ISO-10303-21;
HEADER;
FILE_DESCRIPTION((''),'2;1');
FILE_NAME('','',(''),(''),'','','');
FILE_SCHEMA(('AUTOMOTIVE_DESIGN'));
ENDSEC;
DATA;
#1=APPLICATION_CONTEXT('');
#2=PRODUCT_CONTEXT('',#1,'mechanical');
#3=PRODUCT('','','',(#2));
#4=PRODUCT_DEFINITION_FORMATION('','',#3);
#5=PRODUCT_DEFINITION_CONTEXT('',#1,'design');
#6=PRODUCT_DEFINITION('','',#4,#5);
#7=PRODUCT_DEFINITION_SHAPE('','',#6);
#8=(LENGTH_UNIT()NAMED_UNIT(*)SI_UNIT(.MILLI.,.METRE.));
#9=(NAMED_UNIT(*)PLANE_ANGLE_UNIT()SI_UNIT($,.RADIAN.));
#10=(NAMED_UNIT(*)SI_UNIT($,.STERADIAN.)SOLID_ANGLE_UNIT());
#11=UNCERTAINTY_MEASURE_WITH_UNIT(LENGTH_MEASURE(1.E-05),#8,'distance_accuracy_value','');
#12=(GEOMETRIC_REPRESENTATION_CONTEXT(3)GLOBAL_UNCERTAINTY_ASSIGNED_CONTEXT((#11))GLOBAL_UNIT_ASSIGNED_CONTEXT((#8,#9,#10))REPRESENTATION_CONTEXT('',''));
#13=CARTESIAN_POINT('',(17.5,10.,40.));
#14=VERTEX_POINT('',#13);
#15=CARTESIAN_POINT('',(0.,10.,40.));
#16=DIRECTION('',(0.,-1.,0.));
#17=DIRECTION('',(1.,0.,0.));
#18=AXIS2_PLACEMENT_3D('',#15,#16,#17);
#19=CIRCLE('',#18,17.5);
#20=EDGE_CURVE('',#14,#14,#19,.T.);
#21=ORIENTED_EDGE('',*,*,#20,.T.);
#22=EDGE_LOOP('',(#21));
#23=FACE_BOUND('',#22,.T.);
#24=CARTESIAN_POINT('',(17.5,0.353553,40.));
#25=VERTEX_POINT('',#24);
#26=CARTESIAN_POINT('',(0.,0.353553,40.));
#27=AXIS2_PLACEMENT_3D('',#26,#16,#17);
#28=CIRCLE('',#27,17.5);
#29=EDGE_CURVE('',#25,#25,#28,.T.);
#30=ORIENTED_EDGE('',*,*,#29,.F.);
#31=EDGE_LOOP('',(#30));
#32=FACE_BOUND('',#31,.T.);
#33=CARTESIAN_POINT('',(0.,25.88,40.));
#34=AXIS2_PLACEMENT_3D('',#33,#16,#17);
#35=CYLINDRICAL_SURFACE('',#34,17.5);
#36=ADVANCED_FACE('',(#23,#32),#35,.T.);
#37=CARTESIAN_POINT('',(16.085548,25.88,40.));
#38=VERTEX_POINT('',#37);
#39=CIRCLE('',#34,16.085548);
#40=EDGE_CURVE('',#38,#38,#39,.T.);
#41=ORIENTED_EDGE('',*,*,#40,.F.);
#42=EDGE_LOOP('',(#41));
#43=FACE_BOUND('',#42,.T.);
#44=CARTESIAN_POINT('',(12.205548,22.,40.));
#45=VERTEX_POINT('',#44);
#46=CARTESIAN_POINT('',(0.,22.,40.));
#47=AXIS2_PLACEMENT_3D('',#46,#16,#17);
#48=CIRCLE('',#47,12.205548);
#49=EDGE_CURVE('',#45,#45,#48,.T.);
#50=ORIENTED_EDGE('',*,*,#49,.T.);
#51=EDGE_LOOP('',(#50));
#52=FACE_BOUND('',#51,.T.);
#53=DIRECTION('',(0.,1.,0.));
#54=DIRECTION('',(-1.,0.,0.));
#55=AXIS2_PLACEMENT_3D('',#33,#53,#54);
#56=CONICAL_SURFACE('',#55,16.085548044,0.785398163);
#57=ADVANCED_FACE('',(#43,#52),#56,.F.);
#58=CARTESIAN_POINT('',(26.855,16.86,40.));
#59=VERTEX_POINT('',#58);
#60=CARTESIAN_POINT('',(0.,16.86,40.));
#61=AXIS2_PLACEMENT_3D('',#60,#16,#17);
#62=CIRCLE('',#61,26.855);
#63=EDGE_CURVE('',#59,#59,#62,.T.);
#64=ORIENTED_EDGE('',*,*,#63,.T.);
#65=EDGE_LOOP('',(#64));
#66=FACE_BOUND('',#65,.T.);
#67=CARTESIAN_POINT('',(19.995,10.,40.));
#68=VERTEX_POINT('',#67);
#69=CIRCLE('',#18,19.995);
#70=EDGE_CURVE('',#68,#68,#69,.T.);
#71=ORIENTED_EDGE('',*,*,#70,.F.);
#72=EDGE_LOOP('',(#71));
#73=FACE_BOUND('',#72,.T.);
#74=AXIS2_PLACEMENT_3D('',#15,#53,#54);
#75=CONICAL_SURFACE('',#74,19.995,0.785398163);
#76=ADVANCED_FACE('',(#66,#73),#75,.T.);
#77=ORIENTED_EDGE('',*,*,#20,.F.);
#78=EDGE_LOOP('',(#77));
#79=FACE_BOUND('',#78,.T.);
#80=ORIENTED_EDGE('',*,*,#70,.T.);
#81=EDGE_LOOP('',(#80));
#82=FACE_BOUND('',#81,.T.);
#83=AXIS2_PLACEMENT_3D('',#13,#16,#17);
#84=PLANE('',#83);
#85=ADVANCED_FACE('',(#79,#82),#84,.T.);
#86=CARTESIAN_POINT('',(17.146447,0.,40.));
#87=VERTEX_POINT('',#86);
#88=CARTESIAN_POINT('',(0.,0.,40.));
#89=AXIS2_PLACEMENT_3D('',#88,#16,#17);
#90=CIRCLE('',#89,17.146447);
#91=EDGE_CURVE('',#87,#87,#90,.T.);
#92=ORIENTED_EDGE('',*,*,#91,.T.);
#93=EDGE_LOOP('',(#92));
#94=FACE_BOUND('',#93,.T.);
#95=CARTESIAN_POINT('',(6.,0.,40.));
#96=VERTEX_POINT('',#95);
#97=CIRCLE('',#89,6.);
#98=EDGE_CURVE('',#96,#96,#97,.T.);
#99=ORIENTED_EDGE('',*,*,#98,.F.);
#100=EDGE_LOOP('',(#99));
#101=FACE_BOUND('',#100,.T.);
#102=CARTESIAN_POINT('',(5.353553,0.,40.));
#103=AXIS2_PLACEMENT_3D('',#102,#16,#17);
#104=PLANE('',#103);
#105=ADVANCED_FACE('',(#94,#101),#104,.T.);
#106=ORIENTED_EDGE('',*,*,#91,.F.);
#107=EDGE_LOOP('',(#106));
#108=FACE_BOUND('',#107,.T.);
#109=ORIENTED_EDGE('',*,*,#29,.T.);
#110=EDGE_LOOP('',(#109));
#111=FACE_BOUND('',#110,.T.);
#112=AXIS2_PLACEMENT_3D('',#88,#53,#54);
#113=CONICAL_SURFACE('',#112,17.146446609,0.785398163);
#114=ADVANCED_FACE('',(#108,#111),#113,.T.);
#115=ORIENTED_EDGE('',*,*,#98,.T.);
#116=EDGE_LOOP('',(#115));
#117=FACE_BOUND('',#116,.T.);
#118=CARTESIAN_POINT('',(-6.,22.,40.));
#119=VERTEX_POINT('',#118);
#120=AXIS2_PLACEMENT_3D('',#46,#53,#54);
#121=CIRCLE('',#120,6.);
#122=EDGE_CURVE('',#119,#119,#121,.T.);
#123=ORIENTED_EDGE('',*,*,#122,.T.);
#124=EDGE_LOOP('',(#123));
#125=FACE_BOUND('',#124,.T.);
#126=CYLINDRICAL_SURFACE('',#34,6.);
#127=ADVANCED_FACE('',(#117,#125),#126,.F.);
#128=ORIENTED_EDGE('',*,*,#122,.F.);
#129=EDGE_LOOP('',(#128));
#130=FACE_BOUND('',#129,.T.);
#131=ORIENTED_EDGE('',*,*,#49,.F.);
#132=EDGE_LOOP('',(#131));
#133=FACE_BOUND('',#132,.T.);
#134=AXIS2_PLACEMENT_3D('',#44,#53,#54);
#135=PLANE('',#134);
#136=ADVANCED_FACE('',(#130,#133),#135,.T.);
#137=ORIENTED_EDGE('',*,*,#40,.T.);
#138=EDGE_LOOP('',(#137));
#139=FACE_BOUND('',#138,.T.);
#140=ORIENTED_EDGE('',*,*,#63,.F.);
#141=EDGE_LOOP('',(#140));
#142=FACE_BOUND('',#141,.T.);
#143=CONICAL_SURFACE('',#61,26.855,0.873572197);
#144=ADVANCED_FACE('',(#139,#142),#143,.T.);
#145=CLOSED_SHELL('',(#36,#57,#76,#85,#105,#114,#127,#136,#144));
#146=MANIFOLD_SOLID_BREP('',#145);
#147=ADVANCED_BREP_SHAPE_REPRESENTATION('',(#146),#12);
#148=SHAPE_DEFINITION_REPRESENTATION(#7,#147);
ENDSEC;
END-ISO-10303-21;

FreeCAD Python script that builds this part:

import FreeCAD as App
import Part
import Sketcher

V = App.Vector
Q = App.Units.Quantity


def add_polygon(sketch, points):
    """Adds a closed chain of lines whose ends are joined by coincident constraints."""
    first, n = sketch.GeometryCount, len(points)
    for a, b in zip(points, points[1:] + points[:1]):
        sketch.addGeometry(Part.LineSegment(App.Vector(*a, 0), App.Vector(*b, 0)), False)
    for i in range(n):
        sketch.addConstraint(Sketcher.Constraint("Coincident", first + i, 2, first + (i + 1) % n, 1))

doc = App.newDocument("Part")
body = doc.addObject("PartDesign::Body", "Body")

# Sketch on XY plane
sketch1 = body.newObject("Sketcher::SketchObject", "Sketch")
sketch1.AttachmentSupport = (doc.getObject("XY_Plane"), [""])
sketch1.MapMode = "FlatFace"
sketch1.AttachmentOffset = App.Placement(V(0, 0, 40), App.Rotation())
add_polygon(sketch1, [(5.4, 0), (17.1, 0), (17.5, 0.4), (17.5, 10), (20, 10), (26.9, 16.9), (16.1, 25.9), (12.2, 22), (5, 22), (5, 0.4)])  # lines 0-9
sketch1.addConstraint([
    Sketcher.Constraint("Horizontal", 0),
    Sketcher.Constraint("Vertical", 2),
    Sketcher.Constraint("Horizontal", 3),
    Sketcher.Constraint("Horizontal", 7),
    Sketcher.Constraint("Vertical", 8),
    Sketcher.Constraint("PointOnObject", 0, 2, -1),
    Sketcher.Constraint("Parallel", 1, 4),
    Sketcher.Constraint("Parallel", 4, 6),
    Sketcher.Constraint("Perpendicular", 6, 9),
    Sketcher.Constraint("Horizontal", 1, 2, 8, 2),
    Sketcher.Constraint("Equal", 1, 9),
    Sketcher.Constraint("DistanceY", -1, 1, 2, 2, Q("10 mm")),
    Sketcher.Constraint("DistanceY", -1, 1, 6, 2, Q("22 mm")),
    Sketcher.Constraint("DistanceX", -1, 1, 7, 2, Q("5 mm")),
    Sketcher.Constraint("Distance", 1, Q("0.5 mm")),
    Sketcher.Constraint("DistanceX", -1, 1, 1, 2, Q("17.5 mm")),
    Sketcher.Constraint("DistanceX", 3, 1, 3, 2, Q("2.495 mm")),
    Sketcher.Constraint("DistanceY", -1, 1, 4, 2, Q("16.86 mm")),
    Sketcher.Constraint("DistanceY", -1, 1, 5, 2, Q("25.88 mm")),
    Sketcher.Constraint("DistanceX", 7, 2, 7, 1, Q("7.205548 mm")),
])
revolution = body.newObject("PartDesign::Revolution", "Revolution")
revolution.Profile = sketch1
revolution.ReferenceAxis = (sketch1, ["V_Axis"])
revolution.Angle = 360

# Sketch on XZ plane
sketch2 = body.newObject("Sketcher::SketchObject", "Sketch001")
sketch2.AttachmentSupport = (doc.getObject("XZ_Plane"), [""])
sketch2.MapMode = "FlatFace"
sketch2.addGeometry(Part.Circle(V(0, 40, 0), V(0, 0, 1), 6), False)
sketch2.addConstraint([
    Sketcher.Constraint("PointOnObject", 0, 3, -2),
    Sketcher.Constraint("Diameter", 0, Q("12 mm")),
    Sketcher.Constraint("DistanceY", -1, 1, 0, 3, Q("40 mm")),
])
pocket1 = body.newObject("PartDesign::Pocket", "Pocket")
pocket1.Profile = sketch2
pocket1.Type = "ThroughAll"

doc.recompute()
